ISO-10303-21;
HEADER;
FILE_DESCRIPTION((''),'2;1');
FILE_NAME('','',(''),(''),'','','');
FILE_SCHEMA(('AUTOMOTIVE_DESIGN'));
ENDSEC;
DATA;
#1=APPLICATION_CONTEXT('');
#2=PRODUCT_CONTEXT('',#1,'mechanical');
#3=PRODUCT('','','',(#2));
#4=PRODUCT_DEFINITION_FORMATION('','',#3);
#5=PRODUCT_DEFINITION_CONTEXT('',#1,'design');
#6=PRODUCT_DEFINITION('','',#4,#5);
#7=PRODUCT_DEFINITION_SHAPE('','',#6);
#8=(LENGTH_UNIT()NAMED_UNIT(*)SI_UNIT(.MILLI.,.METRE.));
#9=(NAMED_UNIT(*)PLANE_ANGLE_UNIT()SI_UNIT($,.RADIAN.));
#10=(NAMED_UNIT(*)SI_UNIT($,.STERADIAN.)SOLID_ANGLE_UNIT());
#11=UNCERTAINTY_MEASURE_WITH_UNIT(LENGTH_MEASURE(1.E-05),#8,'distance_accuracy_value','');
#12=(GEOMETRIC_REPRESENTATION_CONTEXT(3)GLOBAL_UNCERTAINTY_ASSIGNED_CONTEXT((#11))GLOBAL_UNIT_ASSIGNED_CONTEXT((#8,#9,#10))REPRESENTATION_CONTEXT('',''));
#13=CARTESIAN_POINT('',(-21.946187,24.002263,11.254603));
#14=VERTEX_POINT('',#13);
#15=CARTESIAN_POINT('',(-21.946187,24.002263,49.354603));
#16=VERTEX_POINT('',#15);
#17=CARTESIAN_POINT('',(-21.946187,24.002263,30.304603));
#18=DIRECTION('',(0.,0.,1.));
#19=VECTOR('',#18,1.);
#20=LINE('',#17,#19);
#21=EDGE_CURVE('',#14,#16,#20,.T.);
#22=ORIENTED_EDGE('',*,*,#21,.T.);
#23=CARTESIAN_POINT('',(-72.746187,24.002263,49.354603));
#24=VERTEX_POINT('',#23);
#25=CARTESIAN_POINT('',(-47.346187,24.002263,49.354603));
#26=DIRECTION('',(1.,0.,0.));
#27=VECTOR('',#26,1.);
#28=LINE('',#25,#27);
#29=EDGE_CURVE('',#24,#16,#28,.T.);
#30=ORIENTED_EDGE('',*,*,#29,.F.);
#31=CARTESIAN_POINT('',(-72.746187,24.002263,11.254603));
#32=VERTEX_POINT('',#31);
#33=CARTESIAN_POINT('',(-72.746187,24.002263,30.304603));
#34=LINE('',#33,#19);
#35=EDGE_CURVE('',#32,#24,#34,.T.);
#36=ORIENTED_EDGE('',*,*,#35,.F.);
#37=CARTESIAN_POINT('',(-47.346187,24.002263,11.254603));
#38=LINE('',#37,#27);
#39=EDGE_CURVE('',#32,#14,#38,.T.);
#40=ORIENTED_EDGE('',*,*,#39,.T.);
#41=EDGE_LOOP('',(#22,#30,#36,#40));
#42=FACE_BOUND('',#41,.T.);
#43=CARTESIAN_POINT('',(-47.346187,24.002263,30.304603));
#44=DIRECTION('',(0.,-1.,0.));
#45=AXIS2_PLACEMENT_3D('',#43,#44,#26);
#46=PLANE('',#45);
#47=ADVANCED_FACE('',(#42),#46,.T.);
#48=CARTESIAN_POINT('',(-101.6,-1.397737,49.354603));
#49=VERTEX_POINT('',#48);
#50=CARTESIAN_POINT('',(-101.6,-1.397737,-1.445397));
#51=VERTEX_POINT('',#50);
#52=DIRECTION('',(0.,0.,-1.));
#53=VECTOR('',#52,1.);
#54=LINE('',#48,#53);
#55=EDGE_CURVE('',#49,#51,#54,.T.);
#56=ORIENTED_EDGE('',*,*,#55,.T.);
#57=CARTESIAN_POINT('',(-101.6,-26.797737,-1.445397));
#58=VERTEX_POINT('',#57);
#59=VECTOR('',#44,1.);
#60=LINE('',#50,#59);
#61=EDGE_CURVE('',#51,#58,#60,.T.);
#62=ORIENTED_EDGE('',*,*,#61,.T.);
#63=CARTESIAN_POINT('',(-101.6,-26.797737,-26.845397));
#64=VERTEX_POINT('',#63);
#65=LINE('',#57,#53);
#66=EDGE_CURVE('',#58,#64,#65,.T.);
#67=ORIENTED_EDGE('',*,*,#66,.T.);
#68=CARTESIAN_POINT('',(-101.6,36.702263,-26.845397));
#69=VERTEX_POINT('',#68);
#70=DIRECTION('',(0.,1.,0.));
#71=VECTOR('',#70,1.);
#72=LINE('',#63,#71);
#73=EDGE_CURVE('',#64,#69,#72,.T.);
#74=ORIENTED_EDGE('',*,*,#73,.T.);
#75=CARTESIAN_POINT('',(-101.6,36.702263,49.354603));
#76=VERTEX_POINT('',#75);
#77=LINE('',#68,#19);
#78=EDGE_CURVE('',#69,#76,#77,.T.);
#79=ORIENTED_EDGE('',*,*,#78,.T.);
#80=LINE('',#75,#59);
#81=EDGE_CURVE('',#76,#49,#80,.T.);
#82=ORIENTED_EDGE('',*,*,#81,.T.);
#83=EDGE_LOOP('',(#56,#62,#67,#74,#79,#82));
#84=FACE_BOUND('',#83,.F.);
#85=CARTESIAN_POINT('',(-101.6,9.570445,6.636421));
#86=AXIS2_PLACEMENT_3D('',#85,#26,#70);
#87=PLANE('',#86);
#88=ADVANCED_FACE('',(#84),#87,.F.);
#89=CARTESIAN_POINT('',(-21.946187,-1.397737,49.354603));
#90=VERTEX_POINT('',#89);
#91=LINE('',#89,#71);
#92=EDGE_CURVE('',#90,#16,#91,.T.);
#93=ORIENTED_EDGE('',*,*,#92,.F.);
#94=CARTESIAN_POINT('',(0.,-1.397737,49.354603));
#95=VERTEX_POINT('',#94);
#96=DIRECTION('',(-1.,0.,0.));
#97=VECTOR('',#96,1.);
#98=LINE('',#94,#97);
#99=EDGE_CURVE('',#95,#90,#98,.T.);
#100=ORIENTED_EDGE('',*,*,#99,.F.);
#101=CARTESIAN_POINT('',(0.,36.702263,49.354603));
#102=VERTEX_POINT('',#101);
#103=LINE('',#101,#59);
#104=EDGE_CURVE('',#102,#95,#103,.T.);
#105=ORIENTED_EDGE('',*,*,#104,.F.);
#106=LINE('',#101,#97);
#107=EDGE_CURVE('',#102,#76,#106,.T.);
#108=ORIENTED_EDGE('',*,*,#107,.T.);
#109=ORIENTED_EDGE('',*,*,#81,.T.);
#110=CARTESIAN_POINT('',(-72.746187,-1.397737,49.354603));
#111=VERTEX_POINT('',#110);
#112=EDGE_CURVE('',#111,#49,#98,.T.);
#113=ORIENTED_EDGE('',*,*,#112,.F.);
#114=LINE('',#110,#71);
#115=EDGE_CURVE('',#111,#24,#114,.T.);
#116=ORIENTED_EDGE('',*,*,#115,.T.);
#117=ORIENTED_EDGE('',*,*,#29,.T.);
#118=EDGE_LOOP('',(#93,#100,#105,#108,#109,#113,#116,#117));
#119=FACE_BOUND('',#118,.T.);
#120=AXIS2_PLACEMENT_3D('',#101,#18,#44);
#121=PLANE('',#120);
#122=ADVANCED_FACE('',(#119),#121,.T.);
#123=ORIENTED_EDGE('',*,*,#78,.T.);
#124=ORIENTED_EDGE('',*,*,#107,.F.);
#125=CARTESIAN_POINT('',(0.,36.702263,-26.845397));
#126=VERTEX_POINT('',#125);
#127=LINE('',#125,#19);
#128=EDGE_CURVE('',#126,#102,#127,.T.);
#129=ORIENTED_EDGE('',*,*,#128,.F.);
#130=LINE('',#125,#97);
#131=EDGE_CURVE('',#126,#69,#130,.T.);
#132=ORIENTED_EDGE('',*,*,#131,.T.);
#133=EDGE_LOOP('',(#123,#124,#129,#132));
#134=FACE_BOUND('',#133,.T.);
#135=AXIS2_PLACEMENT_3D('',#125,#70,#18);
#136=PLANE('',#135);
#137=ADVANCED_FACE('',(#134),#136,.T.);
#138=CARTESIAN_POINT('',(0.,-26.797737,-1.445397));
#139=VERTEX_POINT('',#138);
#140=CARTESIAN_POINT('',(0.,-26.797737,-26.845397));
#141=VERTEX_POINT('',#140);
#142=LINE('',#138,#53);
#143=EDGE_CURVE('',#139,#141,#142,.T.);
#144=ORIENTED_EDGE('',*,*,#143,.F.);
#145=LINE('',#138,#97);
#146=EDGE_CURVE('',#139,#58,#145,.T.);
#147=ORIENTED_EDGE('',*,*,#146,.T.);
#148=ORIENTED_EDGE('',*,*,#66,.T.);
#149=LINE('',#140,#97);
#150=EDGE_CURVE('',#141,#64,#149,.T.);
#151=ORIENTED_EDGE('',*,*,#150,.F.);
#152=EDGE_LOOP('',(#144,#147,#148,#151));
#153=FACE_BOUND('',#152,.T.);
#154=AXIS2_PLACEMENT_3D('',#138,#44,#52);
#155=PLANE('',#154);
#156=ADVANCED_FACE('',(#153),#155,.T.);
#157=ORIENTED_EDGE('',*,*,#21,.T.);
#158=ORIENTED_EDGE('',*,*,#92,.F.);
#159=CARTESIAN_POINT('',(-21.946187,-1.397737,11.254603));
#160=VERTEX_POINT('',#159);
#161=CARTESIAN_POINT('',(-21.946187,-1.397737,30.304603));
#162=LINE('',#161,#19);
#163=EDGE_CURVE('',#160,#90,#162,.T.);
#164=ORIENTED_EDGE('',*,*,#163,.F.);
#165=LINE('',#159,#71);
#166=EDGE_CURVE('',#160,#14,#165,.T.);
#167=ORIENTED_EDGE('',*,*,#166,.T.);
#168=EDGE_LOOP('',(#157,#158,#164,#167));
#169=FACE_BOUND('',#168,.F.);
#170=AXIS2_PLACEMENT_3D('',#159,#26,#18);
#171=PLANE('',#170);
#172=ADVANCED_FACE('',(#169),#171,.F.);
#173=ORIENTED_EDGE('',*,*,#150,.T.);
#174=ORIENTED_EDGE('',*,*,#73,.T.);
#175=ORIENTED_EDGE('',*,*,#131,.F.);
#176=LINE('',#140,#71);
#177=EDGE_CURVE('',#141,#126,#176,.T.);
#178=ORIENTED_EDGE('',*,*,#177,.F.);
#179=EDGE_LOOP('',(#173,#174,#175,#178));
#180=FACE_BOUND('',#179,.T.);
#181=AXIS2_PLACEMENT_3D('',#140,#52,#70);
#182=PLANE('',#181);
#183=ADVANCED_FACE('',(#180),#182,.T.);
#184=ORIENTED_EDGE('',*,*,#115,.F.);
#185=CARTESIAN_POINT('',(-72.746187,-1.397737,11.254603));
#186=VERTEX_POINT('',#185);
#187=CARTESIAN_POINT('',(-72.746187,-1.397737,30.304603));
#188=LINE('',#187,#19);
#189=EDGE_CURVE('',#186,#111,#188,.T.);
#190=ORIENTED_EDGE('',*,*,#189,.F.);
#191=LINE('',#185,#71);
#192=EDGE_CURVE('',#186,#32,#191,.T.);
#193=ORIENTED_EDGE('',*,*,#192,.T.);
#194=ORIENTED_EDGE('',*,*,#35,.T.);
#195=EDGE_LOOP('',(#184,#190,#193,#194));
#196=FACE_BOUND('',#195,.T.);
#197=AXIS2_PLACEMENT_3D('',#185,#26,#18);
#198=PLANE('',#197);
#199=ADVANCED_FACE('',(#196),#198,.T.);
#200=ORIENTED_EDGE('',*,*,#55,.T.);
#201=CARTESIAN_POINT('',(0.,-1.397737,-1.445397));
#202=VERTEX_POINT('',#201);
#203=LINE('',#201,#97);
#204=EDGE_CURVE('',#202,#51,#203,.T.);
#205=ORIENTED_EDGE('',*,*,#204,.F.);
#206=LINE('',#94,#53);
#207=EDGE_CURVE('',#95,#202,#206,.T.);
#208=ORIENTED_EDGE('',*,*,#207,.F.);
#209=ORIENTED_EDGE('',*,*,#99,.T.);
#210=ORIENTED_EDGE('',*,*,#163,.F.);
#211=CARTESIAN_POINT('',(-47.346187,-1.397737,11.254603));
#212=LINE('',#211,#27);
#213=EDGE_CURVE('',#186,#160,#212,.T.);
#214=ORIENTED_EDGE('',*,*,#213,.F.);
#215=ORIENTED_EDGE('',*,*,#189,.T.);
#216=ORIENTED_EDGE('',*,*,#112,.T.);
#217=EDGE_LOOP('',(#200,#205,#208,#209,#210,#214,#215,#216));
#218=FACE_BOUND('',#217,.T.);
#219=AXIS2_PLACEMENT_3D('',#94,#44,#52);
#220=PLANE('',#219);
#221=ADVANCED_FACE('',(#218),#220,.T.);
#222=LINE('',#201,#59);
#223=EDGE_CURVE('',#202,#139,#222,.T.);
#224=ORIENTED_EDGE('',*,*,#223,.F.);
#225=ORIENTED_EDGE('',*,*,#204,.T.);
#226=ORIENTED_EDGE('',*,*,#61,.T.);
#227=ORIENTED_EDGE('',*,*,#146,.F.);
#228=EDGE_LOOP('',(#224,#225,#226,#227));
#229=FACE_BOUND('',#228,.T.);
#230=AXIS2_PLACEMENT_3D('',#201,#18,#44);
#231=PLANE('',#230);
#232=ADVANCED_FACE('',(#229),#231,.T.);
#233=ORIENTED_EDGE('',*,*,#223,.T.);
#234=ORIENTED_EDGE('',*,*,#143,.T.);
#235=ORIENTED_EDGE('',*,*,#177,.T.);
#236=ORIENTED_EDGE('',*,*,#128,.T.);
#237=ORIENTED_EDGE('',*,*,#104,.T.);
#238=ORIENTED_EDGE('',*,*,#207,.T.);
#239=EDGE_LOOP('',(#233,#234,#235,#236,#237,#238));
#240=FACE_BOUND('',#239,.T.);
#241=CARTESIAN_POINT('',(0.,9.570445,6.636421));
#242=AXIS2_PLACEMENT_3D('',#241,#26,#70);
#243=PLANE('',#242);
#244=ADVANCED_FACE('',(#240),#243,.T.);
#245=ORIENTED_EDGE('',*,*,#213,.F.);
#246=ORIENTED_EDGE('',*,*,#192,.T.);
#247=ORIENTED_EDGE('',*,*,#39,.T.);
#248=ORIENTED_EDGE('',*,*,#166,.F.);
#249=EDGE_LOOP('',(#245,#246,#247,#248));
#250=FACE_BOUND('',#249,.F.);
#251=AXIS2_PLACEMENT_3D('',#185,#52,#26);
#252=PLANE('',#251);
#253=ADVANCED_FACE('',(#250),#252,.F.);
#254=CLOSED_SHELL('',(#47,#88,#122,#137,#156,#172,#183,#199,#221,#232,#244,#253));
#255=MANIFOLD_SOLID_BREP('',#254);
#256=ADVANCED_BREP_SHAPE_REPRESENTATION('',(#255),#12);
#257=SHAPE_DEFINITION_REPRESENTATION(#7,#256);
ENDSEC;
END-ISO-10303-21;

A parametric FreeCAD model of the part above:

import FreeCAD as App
import Part
import Sketcher
Q = App.Units.Quantity


def add_polygon(sketch, points):
    """Adds a closed chain of lines whose ends are joined by coincident constraints."""
    first, n = sketch.GeometryCount, len(points)
    for a, b in zip(points, points[1:] + points[:1]):
        sketch.addGeometry(Part.LineSegment(App.Vector(*a, 0), App.Vector(*b, 0)), False)
    for i in range(n):
        sketch.addConstraint(Sketcher.Constraint("Coincident", first + i, 2, first + (i + 1) % n, 1))

doc = App.newDocument("Part")
body = doc.addObject("PartDesign::Body", "Body")

sketch1 = body.newObject("Sketcher::SketchObject", "Sketch")
sketch1.AttachmentSupport = (doc.getObject("YZ_Plane"), [""])
sketch1.MapMode = "FlatFace"
add_polygon(sketch1, [(-27, -1), (-27, -27), (37, -27), (37, 49), (-1, 49), (-1, -1)])
sketch1.addConstraint([
    Sketcher.Constraint("Vertical", 0),
    Sketcher.Constraint("Horizontal", 1),
    Sketcher.Constraint("Vertical", 2),
    Sketcher.Constraint("Horizontal", 3),
    Sketcher.Constraint("Vertical", 4),
    Sketcher.Constraint("Horizontal", 5),
    Sketcher.Constraint("Equal", 5, 0),
    Sketcher.Constraint("DistanceX", 5, 2, 5, 1, Q("1 in")),
    Sketcher.Constraint("DistanceY", 2, 1, 2, 2, Q("3 in")),
    Sketcher.Constraint("DistanceX", 1, 1, 1, 2, Q("2.5 in")),
    Sketcher.Constraint("DistanceX", 0, 2, -1, 1, 26.797737),
    Sketcher.Constraint("DistanceY", 0, 2, -1, 1, 26.845397),
])
pad1 = body.newObject("PartDesign::Pad", "Pad")
pad1.Profile = sketch1
pad1.Length = Q("4 in")
pad1.Reversed = True

sketch2 = body.newObject("Sketcher::SketchObject", "Sketch001")
sketch2.AttachmentSupport = (doc.getObject("XZ_Plane"), [""])
sketch2.MapMode = "FlatFace"
sketch2.AttachmentOffset = App.Placement(App.Vector(0, 0, 1.397737), App.Rotation())
add_polygon(sketch2, [(-73, 49), (-73, 11), (-22, 11), (-22, 49)])
sketch2.addConstraint([
    Sketcher.Constraint("Vertical", 0),
    Sketcher.Constraint("Horizontal", 1),
    Sketcher.Constraint("Vertical", 2),
    Sketcher.Constraint("Horizontal", 3),
    Sketcher.Constraint("DistanceX", 1, 1, 1, 2, Q("2 in")),
    Sketcher.Constraint("DistanceY", 0, 2, 0, 1, Q("1.5 in")),
    Sketcher.Constraint("DistanceX", 0, 2, -1, 1, 72.746187),
    Sketcher.Constraint("DistanceY", -1, 1, 0, 2, 11.254603),
])
pocket1 = body.newObject("PartDesign::Pocket", "Pocket")
pocket1.Profile = sketch2
pocket1.Length = Q("1 in")

doc.recompute()
